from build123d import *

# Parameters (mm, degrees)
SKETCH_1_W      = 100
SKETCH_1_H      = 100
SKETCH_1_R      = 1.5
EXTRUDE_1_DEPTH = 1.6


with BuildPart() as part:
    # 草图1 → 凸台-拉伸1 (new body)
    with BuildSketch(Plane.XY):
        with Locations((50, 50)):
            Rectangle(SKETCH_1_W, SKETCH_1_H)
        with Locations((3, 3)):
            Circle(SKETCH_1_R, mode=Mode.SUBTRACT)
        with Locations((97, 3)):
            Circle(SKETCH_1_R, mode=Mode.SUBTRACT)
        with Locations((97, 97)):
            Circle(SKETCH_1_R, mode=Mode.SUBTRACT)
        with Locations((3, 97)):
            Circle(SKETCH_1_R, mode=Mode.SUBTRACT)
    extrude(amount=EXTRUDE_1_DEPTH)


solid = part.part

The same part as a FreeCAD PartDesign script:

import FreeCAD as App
import Part
import Sketcher
from FreeCAD import Vector
Q = App.Units.Quantity

doc = App.newDocument("Part")
body = doc.addObject("PartDesign::Body", "Body")

# Sketch on XY plane
sketch1 = body.newObject("Sketcher::SketchObject", "Sketch")
sketch1.AttachmentSupport = (doc.getObject("XY_Plane"), [""])
sketch1.MapMode = "FlatFace"
sketch1.addGeometry([
    Part.LineSegment(Vector(0, 100, 0), Vector(0, 0, 0)),  # 0
    Part.LineSegment(Vector(0, 0, 0), Vector(100, 0, 0)),  # 1
    Part.LineSegment(Vector(100, 0, 0), Vector(100, 100, 0)),  # 2
    Part.LineSegment(Vector(100, 100, 0), Vector(0, 100, 0)),  # 3
    Part.Circle(Vector(3, 3, 0), Vector(0, 0, 1), 1.5),  # 4
    Part.Circle(Vector(97, 3, 0), Vector(0, 0, 1), 1.5),  # 5
    Part.Circle(Vector(3, 97, 0), Vector(0, 0, 1), 1.5),  # 6
    Part.Circle(Vector(97, 97, 0), Vector(0, 0, 1), 1.5),  # 7
], False)
sketch1.addConstraint([
    Sketcher.Constraint("Coincident", 0, 2, 1, 1),
    Sketcher.Constraint("Coincident", 1, 2, 2, 1),
    Sketcher.Constraint("Coincident", 2, 2, 3, 1),
    Sketcher.Constraint("Coincident", 3, 2, 0, 1),
    Sketcher.Constraint("Vertical", 0),
    Sketcher.Constraint("Horizontal", 1),
    Sketcher.Constraint("Vertical", 2),
    Sketcher.Constraint("Horizontal", 3),
    Sketcher.Constraint("Coincident", 0, 2, -1, 1),
    Sketcher.Constraint("Equal", 4, 5),
    Sketcher.Constraint("Equal", 5, 6),
    Sketcher.Constraint("Equal", 6, 7),
    Sketcher.Constraint("Horizontal", 4, 3, 5, 3),
    Sketcher.Constraint("Horizontal", 6, 3, 7, 3),
    Sketcher.Constraint("Vertical", 4, 3, 6, 3),
    Sketcher.Constraint("Vertical", 5, 3, 7, 3),
    Sketcher.Constraint("Equal", 3, 0),
    Sketcher.Constraint("Diameter", 4, Q("3 mm")),
    Sketcher.Constraint("DistanceX", 1, 1, 1, 2, Q("100 mm")),
    Sketcher.Constraint("DistanceX", -1, 1, 4, 3, Q("3 mm")),
    Sketcher.Constraint("DistanceY", -1, 1, 4, 3, Q("3 mm")),
    Sketcher.Constraint("DistanceX", -1, 1, 5, 3, Q("97 mm")),
    Sketcher.Constraint("DistanceY", -1, 1, 6, 3, Q("97 mm")),
])
pad1 = body.newObject("PartDesign::Pad", "Pad")
pad1.Profile = sketch1
pad1.Length = 1.6

doc.recompute()
